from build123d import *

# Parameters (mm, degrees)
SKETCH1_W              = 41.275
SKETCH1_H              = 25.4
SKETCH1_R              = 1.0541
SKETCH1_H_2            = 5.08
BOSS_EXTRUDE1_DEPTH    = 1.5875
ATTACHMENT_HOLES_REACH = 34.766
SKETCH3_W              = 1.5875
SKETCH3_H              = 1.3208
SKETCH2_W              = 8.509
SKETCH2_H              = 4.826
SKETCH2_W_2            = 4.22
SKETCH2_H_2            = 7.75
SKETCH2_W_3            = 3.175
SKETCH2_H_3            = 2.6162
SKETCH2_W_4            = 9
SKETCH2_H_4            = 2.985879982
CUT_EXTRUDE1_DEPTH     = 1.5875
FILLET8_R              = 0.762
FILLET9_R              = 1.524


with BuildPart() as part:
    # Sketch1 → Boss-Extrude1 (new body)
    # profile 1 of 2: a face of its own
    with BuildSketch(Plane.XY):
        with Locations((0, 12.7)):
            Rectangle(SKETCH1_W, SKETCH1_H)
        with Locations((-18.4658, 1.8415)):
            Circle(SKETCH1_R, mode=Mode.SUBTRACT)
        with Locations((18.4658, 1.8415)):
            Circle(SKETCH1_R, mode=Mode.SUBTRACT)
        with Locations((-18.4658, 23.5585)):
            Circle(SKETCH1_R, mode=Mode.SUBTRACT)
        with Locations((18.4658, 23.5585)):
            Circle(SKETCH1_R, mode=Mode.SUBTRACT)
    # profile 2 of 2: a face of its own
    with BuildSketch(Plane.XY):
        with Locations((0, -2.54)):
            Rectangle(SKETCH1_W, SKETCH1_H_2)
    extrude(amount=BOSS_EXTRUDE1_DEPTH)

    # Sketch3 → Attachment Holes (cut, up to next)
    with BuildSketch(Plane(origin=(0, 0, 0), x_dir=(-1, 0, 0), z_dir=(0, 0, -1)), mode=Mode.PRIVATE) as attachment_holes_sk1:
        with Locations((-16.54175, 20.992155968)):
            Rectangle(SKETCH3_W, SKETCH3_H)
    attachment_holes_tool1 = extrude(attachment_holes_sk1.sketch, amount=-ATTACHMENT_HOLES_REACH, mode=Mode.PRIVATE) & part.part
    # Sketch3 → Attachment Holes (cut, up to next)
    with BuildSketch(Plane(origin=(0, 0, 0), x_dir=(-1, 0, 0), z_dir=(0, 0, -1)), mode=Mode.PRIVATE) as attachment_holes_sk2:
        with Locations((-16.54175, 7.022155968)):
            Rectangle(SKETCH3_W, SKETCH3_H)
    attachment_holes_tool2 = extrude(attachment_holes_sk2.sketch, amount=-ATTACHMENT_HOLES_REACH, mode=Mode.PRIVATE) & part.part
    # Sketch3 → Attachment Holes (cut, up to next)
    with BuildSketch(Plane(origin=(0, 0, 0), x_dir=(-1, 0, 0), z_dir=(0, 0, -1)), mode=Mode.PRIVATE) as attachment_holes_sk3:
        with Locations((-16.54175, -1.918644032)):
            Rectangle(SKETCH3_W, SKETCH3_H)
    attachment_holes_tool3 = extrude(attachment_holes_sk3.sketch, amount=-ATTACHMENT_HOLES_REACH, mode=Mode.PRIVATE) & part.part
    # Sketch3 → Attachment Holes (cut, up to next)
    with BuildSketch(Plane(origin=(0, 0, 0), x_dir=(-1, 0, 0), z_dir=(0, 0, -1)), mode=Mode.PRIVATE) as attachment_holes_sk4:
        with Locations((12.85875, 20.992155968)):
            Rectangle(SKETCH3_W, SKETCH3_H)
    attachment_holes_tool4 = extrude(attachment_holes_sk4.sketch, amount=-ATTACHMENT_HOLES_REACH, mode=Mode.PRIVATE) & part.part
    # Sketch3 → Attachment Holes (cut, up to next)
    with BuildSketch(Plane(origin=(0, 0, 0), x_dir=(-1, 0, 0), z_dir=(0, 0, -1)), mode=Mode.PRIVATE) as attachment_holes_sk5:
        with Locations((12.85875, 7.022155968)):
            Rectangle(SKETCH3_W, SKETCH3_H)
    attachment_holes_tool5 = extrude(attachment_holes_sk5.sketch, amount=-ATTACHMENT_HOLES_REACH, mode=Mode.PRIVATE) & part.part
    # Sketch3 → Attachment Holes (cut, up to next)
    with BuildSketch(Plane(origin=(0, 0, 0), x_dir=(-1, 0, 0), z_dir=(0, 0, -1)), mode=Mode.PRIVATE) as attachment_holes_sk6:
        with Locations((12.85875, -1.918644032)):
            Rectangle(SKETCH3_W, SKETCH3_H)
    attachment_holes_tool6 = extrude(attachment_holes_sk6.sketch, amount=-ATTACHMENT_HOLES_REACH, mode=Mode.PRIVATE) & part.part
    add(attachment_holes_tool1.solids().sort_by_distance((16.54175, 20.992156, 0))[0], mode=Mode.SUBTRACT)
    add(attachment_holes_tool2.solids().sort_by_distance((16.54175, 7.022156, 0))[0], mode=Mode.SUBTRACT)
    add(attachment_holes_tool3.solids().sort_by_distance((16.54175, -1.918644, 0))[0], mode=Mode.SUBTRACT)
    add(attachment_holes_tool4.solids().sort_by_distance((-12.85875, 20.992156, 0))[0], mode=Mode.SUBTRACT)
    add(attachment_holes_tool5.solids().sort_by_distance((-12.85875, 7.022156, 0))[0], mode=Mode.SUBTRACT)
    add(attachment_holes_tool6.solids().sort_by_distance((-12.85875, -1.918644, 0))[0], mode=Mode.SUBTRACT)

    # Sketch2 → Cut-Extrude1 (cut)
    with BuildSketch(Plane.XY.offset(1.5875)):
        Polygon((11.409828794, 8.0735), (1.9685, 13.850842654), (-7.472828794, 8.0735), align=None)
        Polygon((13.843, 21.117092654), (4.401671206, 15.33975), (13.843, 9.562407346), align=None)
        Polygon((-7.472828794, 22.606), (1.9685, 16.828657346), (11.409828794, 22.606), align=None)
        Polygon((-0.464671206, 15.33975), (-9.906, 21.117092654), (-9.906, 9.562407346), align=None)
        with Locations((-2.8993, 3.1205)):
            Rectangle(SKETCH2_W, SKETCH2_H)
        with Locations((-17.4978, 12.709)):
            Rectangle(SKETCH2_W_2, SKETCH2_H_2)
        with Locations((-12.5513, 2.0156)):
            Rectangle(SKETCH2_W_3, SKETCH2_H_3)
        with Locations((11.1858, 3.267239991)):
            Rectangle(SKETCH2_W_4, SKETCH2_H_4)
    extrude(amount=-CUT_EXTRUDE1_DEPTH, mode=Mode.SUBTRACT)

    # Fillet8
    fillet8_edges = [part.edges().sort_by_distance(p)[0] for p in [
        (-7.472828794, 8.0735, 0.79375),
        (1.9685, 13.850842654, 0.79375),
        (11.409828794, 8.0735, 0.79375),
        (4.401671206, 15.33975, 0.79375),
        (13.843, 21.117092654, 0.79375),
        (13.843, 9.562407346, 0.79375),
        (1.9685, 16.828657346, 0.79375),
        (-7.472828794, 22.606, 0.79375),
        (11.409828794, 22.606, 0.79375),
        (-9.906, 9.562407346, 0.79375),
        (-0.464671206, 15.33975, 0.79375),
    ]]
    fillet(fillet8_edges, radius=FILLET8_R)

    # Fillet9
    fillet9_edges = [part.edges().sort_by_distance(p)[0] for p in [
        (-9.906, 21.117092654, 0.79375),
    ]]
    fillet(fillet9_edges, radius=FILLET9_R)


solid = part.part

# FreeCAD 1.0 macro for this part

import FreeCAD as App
import Part
import Sketcher

V = App.Vector
Q = App.Units.Quantity


def edges_at(feature, points):
    """Names of the edges that pass closest to the given points."""
    edges = feature.Shape.Edges
    near = lambda p: min(range(len(edges)), key=lambda i: edges[i].distToShape(Part.Vertex(*p))[0])
    return sorted({f"Edge{near(p) + 1}" for p in points})

doc = App.newDocument("Part")
body = doc.addObject("PartDesign::Body", "Body")

sketch1 = body.newObject("Sketcher::SketchObject", "Sketch")
sketch1.AttachmentSupport = (doc.getObject("XY_Plane"), [""])
sketch1.MapMode = "FlatFace"
sketch1.addGeometry([
    Part.LineSegment(V(-20.6375, 25.4, 0), V(-20.6375, -5.08, 0)),
    Part.LineSegment(V(-20.6375, -5.08, 0), V(20.6375, -5.08, 0)),
    Part.LineSegment(V(20.6375, -5.08, 0), V(20.6375, 25.4, 0)),
    Part.LineSegment(V(20.6375, 25.4, 0), V(-20.6375, 25.4, 0)),
    Part.Circle(V(-18.4658, 1.8415, 0), V(0, 0, 1), 1.0541),
    Part.Circle(V(18.4658, 1.8415, 0), V(0, 0, 1), 1.0541),
    Part.Circle(V(-18.4658, 23.5585, 0), V(0, 0, 1), 1.0541),
    Part.Circle(V(18.4658, 23.5585, 0), V(0, 0, 1), 1.0541),
], False)
sketch1.addConstraint([
    Sketcher.Constraint("Coincident", 0, 2, 1, 1),
    Sketcher.Constraint("Coincident", 1, 2, 2, 1),
    Sketcher.Constraint("Coincident", 2, 2, 3, 1),
    Sketcher.Constraint("Coincident", 3, 2, 0, 1),
    Sketcher.Constraint("Vertical", 0),
    Sketcher.Constraint("Horizontal", 1),
    Sketcher.Constraint("Vertical", 2),
    Sketcher.Constraint("Horizontal", 3),
    Sketcher.Constraint("Equal", 4, 5),
    Sketcher.Constraint("Equal", 5, 6),
    Sketcher.Constraint("Equal", 6, 7),
    Sketcher.Constraint("Symmetric", 4, 3, 5, 3, -2),
    Sketcher.Constraint("Symmetric", 6, 3, 7, 3, -2),
    Sketcher.Constraint("Vertical", 4, 3, 6, 3),
    Sketcher.Constraint("Diameter", 4, Q("0.083 in")),
    Sketcher.Constraint("DistanceY", 0, 2, 0, 1, Q("1.2 in")),
    Sketcher.Constraint("DistanceY", -1, 1, 2, 2, Q("1 in")),
    Sketcher.Constraint("DistanceX", 1, 1, 1, 2, Q("1.625 in")),
    Sketcher.Constraint("DistanceX", 4, 3, -1, 1, Q("0.727 in")),
    Sketcher.Constraint("DistanceX", 0, 2, -1, 1, Q("0.8125 in")),
    Sketcher.Constraint("DistanceY", 4, 3, 6, 3, Q("0.855 in")),
    Sketcher.Constraint("DistanceY", -1, 1, 4, 3, Q("0.0725 in")),
])
pad1 = body.newObject("PartDesign::Pad", "Pad")
pad1.Profile = sketch1
pad1.Length = Q("0.0625 in")

sketch2 = body.newObject("Sketcher::SketchObject", "Sketch001")
sketch2.AttachmentSupport = (doc.getObject("XY_Plane"), [""])
sketch2.MapMode = "FlatFace"
sketch2.addGeometry([
    Part.LineSegment(V(17.3355, 21.652556, 0), V(17.3355, 20.331756, 0)),
    Part.LineSegment(V(17.3355, 20.331756, 0), V(15.748, 20.331756, 0)),
    Part.LineSegment(V(15.748, 20.331756, 0), V(15.748, 21.652556, 0)),
    Part.LineSegment(V(15.748, 21.652556, 0), V(17.3355, 21.652556, 0)),
], False)
sketch2.addConstraint([
    Sketcher.Constraint("Coincident", 0, 2, 1, 1),
    Sketcher.Constraint("Coincident", 1, 2, 2, 1),
    Sketcher.Constraint("Coincident", 2, 2, 3, 1),
    Sketcher.Constraint("Coincident", 3, 2, 0, 1),
    Sketcher.Constraint("Vertical", 0),
    Sketcher.Constraint("Horizontal", 1),
    Sketcher.Constraint("Vertical", 2),
    Sketcher.Constraint("Horizontal", 3),
    Sketcher.Constraint("DistanceX", 1, 2, 1, 1, Q("0.0625 in")),
    Sketcher.Constraint("DistanceY", 0, 2, 0, 1, Q("0.052 in")),
    Sketcher.Constraint("DistanceX", -1, 1, 1, 2, Q("0.62 in")),
    Sketcher.Constraint("DistanceY", -1, 1, 0, 2, Q("20.331756 mm")),
])
pocket1 = body.newObject("PartDesign::Pocket", "Pocket")
pocket1.Profile = sketch2
pocket1.Type = "UpToFirst"
pocket1.Reversed = True

sketch3 = body.newObject("Sketcher::SketchObject", "Sketch002")
sketch3.AttachmentSupport = (doc.getObject("XY_Plane"), [""])
sketch3.MapMode = "FlatFace"
sketch3.addGeometry([
    Part.LineSegment(V(17.3355, 7.682556, 0), V(17.3355, 6.361756, 0)),
    Part.LineSegment(V(17.3355, 6.361756, 0), V(15.748, 6.361756, 0)),
    Part.LineSegment(V(15.748, 6.361756, 0), V(15.748, 7.682556, 0)),
    Part.LineSegment(V(15.748, 7.682556, 0), V(17.3355, 7.682556, 0)),
], False)
sketch3.addConstraint([
    Sketcher.Constraint("Coincident", 0, 2, 1, 1),
    Sketcher.Constraint("Coincident", 1, 2, 2, 1),
    Sketcher.Constraint("Coincident", 2, 2, 3, 1),
    Sketcher.Constraint("Coincident", 3, 2, 0, 1),
    Sketcher.Constraint("Vertical", 0),
    Sketcher.Constraint("Horizontal", 1),
    Sketcher.Constraint("Vertical", 2),
    Sketcher.Constraint("Horizontal", 3),
    Sketcher.Constraint("DistanceX", 1, 2, 1, 1, Q("0.0625 in")),
    Sketcher.Constraint("DistanceY", 0, 2, 0, 1, Q("0.052 in")),
    Sketcher.Constraint("DistanceX", -1, 1, 1, 2, Q("0.62 in")),
    Sketcher.Constraint("DistanceY", -1, 1, 0, 2, Q("6.361756 mm")),
])
pocket2 = body.newObject("PartDesign::Pocket", "Pocket001")
pocket2.Profile = sketch3
pocket2.Type = "UpToFirst"
pocket2.Reversed = True

sketch4 = body.newObject("Sketcher::SketchObject", "Sketch003")
sketch4.AttachmentSupport = (doc.getObject("XY_Plane"), [""])
sketch4.MapMode = "FlatFace"
sketch4.addGeometry([
    Part.LineSegment(V(17.3355, -1.258244, 0), V(17.3355, -2.579044, 0)),
    Part.LineSegment(V(17.3355, -2.579044, 0), V(15.748, -2.579044, 0)),
    Part.LineSegment(V(15.748, -2.579044, 0), V(15.748, -1.258244, 0)),
    Part.LineSegment(V(15.748, -1.258244, 0), V(17.3355, -1.258244, 0)),
], False)
sketch4.addConstraint([
    Sketcher.Constraint("Coincident", 0, 2, 1, 1),
    Sketcher.Constraint("Coincident", 1, 2, 2, 1),
    Sketcher.Constraint("Coincident", 2, 2, 3, 1),
    Sketcher.Constraint("Coincident", 3, 2, 0, 1),
    Sketcher.Constraint("Vertical", 0),
    Sketcher.Constraint("Horizontal", 1),
    Sketcher.Constraint("Vertical", 2),
    Sketcher.Constraint("Horizontal", 3),
    Sketcher.Constraint("DistanceX", 1, 2, 1, 1, Q("0.0625 in")),
    Sketcher.Constraint("DistanceY", 0, 2, 0, 1, Q("0.052 in")),
    Sketcher.Constraint("DistanceX", -1, 1, 1, 2, Q("0.62 in")),
    Sketcher.Constraint("DistanceY", 0, 2, -1, 1, Q("2.579044 mm")),
])
pocket3 = body.newObject("PartDesign::Pocket", "Pocket002")
pocket3.Profile = sketch4
pocket3.Type = "UpToFirst"
pocket3.Reversed = True

sketch5 = body.newObject("Sketcher::SketchObject", "Sketch004")
sketch5.AttachmentSupport = (doc.getObject("XY_Plane"), [""])
sketch5.MapMode = "FlatFace"
sketch5.addGeometry([
    Part.LineSegment(V(-12.065, 21.652556, 0), V(-12.065, 20.331756, 0)),
    Part.LineSegment(V(-12.065, 20.331756, 0), V(-13.6525, 20.331756, 0)),
    Part.LineSegment(V(-13.6525, 20.331756, 0), V(-13.6525, 21.652556, 0)),
    Part.LineSegment(V(-13.6525, 21.652556, 0), V(-12.065, 21.652556, 0)),
], False)
sketch5.addConstraint([
    Sketcher.Constraint("Coincident", 0, 2, 1, 1),
    Sketcher.Constraint("Coincident", 1, 2, 2, 1),
    Sketcher.Constraint("Coincident", 2, 2, 3, 1),
    Sketcher.Constraint("Coincident", 3, 2, 0, 1),
    Sketcher.Constraint("Vertical", 0),
    Sketcher.Constraint("Horizontal", 1),
    Sketcher.Constraint("Vertical", 2),
    Sketcher.Constraint("Horizontal", 3),
    Sketcher.Constraint("DistanceX", 1, 2, 1, 1, Q("0.0625 in")),
    Sketcher.Constraint("DistanceY", 0, 2, 0, 1, Q("0.052 in")),
    Sketcher.Constraint("DistanceX", 0, 2, -1, 1, Q("0.475 in")),
    Sketcher.Constraint("DistanceY", -1, 1, 0, 2, Q("20.331756 mm")),
])
pocket4 = body.newObject("PartDesign::Pocket", "Pocket003")
pocket4.Profile = sketch5
pocket4.Type = "UpToFirst"
pocket4.Reversed = True

sketch6 = body.newObject("Sketcher::SketchObject", "Sketch005")
sketch6.AttachmentSupport = (doc.getObject("XY_Plane"), [""])
sketch6.MapMode = "FlatFace"
sketch6.addGeometry([
    Part.LineSegment(V(-12.065, 7.682556, 0), V(-12.065, 6.361756, 0)),
    Part.LineSegment(V(-12.065, 6.361756, 0), V(-13.6525, 6.361756, 0)),
    Part.LineSegment(V(-13.6525, 6.361756, 0), V(-13.6525, 7.682556, 0)),
    Part.LineSegment(V(-13.6525, 7.682556, 0), V(-12.065, 7.682556, 0)),
], False)
sketch6.addConstraint([
    Sketcher.Constraint("Coincident", 0, 2, 1, 1),
    Sketcher.Constraint("Coincident", 1, 2, 2, 1),
    Sketcher.Constraint("Coincident", 2, 2, 3, 1),
    Sketcher.Constraint("Coincident", 3, 2, 0, 1),
    Sketcher.Constraint("Vertical", 0),
    Sketcher.Constraint("Horizontal", 1),
    Sketcher.Constraint("Vertical", 2),
    Sketcher.Constraint("Horizontal", 3),
    Sketcher.Constraint("DistanceX", 1, 2, 1, 1, Q("0.0625 in")),
    Sketcher.Constraint("DistanceY", 0, 2, 0, 1, Q("0.052 in")),
    Sketcher.Constraint("DistanceX", 0, 2, -1, 1, Q("0.475 in")),
    Sketcher.Constraint("DistanceY", -1, 1, 0, 2, Q("6.361756 mm")),
])
pocket5 = body.newObject("PartDesign::Pocket", "Pocket004")
pocket5.Profile = sketch6
pocket5.Type = "UpToFirst"
pocket5.Reversed = True

sketch7 = body.newObject("Sketcher::SketchObject", "Sketch006")
sketch7.AttachmentSupport = (doc.getObject("XY_Plane"), [""])
sketch7.MapMode = "FlatFace"
sketch7.addGeometry([
    Part.LineSegment(V(-12.065, -1.258244, 0), V(-12.065, -2.579044, 0)),
    Part.LineSegment(V(-12.065, -2.579044, 0), V(-13.6525, -2.579044, 0)),
    Part.LineSegment(V(-13.6525, -2.579044, 0), V(-13.6525, -1.258244, 0)),
    Part.LineSegment(V(-13.6525, -1.258244, 0), V(-12.065, -1.258244, 0)),
], False)
sketch7.addConstraint([
    Sketcher.Constraint("Coincident", 0, 2, 1, 1),
    Sketcher.Constraint("Coincident", 1, 2, 2, 1),
    Sketcher.Constraint("Coincident", 2, 2, 3, 1),
    Sketcher.Constraint("Coincident", 3, 2, 0, 1),
    Sketcher.Constraint("Vertical", 0),
    Sketcher.Constraint("Horizontal", 1),
    Sketcher.Constraint("Vertical", 2),
    Sketcher.Constraint("Horizontal", 3),
    Sketcher.Constraint("DistanceX", 1, 2, 1, 1, Q("0.0625 in")),
    Sketcher.Constraint("DistanceY", 0, 2, 0, 1, Q("0.052 in")),
    Sketcher.Constraint("DistanceX", 0, 2, -1, 1, Q("0.475 in")),
    Sketcher.Constraint("DistanceY", 0, 2, -1, 1, Q("2.579044 mm")),
])
pocket6 = body.newObject("PartDesign::Pocket", "Pocket005")
pocket6.Profile = sketch7
pocket6.Type = "UpToFirst"
pocket6.Reversed = True

sketch8 = body.newObject("Sketcher::SketchObject", "Sketch007")
sketch8.AttachmentSupport = (doc.getObject("XY_Plane"), [""])
sketch8.MapMode = "FlatFace"
sketch8.AttachmentOffset = App.Placement(V(0, 0, 0.0625 * 25.4), App.Rotation())
sketch8.addGeometry([
    Part.LineSegment(V(11.409829, 8.0735, 0), V(1.9685, 13.850843, 0)),
    Part.LineSegment(V(1.9685, 13.850843, 0), V(-7.472829, 8.0735, 0)),
    Part.LineSegment(V(-7.472829, 8.0735, 0), V(11.409829, 8.0735, 0)),
    Part.LineSegment(V(13.843, 21.117093, 0), V(4.401671, 15.33975, 0)),
    Part.LineSegment(V(4.401671, 15.33975, 0), V(13.843, 9.562407, 0)),
    Part.LineSegment(V(13.843, 9.562407, 0), V(13.843, 21.117093, 0)),
    Part.LineSegment(V(-7.472829, 22.606, 0), V(1.9685, 16.828657, 0)),
    Part.LineSegment(V(1.9685, 16.828657, 0), V(11.409829, 22.606, 0)),
    Part.LineSegment(V(11.409829, 22.606, 0), V(-7.472829, 22.606, 0)),
    Part.LineSegment(V(-0.464671, 15.33975, 0), V(-9.906, 21.117093, 0)),
    Part.LineSegment(V(-9.906, 21.117093, 0), V(-9.906, 9.562407, 0)),
    Part.LineSegment(V(-9.906, 9.562407, 0), V(-0.464671, 15.33975, 0)),
    Part.LineSegment(V(-7.1538, 5.5335, 0), V(-7.1538, 0.7075, 0)),
    Part.LineSegment(V(-7.1538, 0.7075, 0), V(1.3552, 0.7075, 0)),
    Part.LineSegment(V(1.3552, 0.7075, 0), V(1.3552, 5.5335, 0)),
    Part.LineSegment(V(1.3552, 5.5335, 0), V(-7.1538, 5.5335, 0)),
    Part.LineSegment(V(-19.6078, 16.584, 0), V(-19.6078, 8.834, 0)),
    Part.LineSegment(V(-19.6078, 8.834, 0), V(-15.3878, 8.834, 0)),
    Part.LineSegment(V(-15.3878, 8.834, 0), V(-15.3878, 16.584, 0)),
    Part.LineSegment(V(-15.3878, 16.584, 0), V(-19.6078, 16.584, 0)),
    Part.LineSegment(V(-14.1388, 3.3237, 0), V(-14.1388, 0.7075, 0)),
    Part.LineSegment(V(-14.1388, 0.7075, 0), V(-10.9638, 0.7075, 0)),
    Part.LineSegment(V(-10.9638, 0.7075, 0), V(-10.9638, 3.3237, 0)),
    Part.LineSegment(V(-10.9638, 3.3237, 0), V(-14.1388, 3.3237, 0)),
    Part.LineSegment(V(6.6858, 4.76018, 0), V(6.6858, 1.7743, 0)),
    Part.LineSegment(V(6.6858, 1.7743, 0), V(15.6858, 1.7743, 0)),
    Part.LineSegment(V(15.6858, 1.7743, 0), V(15.6858, 4.76018, 0)),
    Part.LineSegment(V(15.6858, 4.76018, 0), V(6.6858, 4.76018, 0)),
], False)
sketch8.addConstraint([
    Sketcher.Constraint("Coincident", 0, 2, 1, 1),
    Sketcher.Constraint("Coincident", 1, 2, 2, 1),
    Sketcher.Constraint("Coincident", 2, 2, 0, 1),
    Sketcher.Constraint("Coincident", 3, 2, 4, 1),
    Sketcher.Constraint("Coincident", 4, 2, 5, 1),
    Sketcher.Constraint("Coincident", 5, 2, 3, 1),
    Sketcher.Constraint("Coincident", 6, 2, 7, 1),
    Sketcher.Constraint("Coincident", 7, 2, 8, 1),
    Sketcher.Constraint("Coincident", 8, 2, 6, 1),
    Sketcher.Constraint("Coincident", 9, 2, 10, 1),
    Sketcher.Constraint("Coincident", 10, 2, 11, 1),
    Sketcher.Constraint("Coincident", 11, 2, 9, 1),
    Sketcher.Constraint("Coincident", 12, 2, 13, 1),
    Sketcher.Constraint("Coincident", 13, 2, 14, 1),
    Sketcher.Constraint("Coincident", 14, 2, 15, 1),
    Sketcher.Constraint("Coincident", 15, 2, 12, 1),
    Sketcher.Constraint("Coincident", 16, 2, 17, 1),
    Sketcher.Constraint("Coincident", 17, 2, 18, 1),
    Sketcher.Constraint("Coincident", 18, 2, 19, 1),
    Sketcher.Constraint("Coincident", 19, 2, 16, 1),
    Sketcher.Constraint("Coincident", 20, 2, 21, 1),
    Sketcher.Constraint("Coincident", 21, 2, 22, 1),
    Sketcher.Constraint("Coincident", 22, 2, 23, 1),
    Sketcher.Constraint("Coincident", 23, 2, 20, 1),
    Sketcher.Constraint("Coincident", 24, 2, 25, 1),
    Sketcher.Constraint("Coincident", 25, 2, 26, 1),
    Sketcher.Constraint("Coincident", 26, 2, 27, 1),
    Sketcher.Constraint("Coincident", 27, 2, 24, 1),
    Sketcher.Constraint("Horizontal", 2),
    Sketcher.Constraint("Vertical", 5),
    Sketcher.Constraint("Horizontal", 8),
    Sketcher.Constraint("Vertical", 10),
    Sketcher.Constraint("Vertical", 12),
    Sketcher.Constraint("Horizontal", 13),
    Sketcher.Constraint("Vertical", 14),
    Sketcher.Constraint("Horizontal", 15),
    Sketcher.Constraint("Vertical", 16),
    Sketcher.Constraint("Horizontal", 17),
    Sketcher.Constraint("Vertical", 18),
    Sketcher.Constraint("Horizontal", 19),
    Sketcher.Constraint("Vertical", 20),
    Sketcher.Constraint("Horizontal", 21),
    Sketcher.Constraint("Vertical", 22),
    Sketcher.Constraint("Horizontal", 23),
    Sketcher.Constraint("Vertical", 24),
    Sketcher.Constraint("Horizontal", 25),
    Sketcher.Constraint("Vertical", 26),
    Sketcher.Constraint("Horizontal", 27),
    Sketcher.Constraint("Parallel", 1, 3),
    Sketcher.Constraint("Parallel", 0, 4),
    Sketcher.Constraint("Parallel", 4, 6),
    Sketcher.Constraint("Parallel", 3, 7),
    Sketcher.Constraint("Parallel", 6, 9),
    Sketcher.Constraint("Parallel", 7, 11),
    Sketcher.Constraint("Horizontal", 5, 2, 9, 2),
    Sketcher.Constraint("Horizontal", 4, 2, 10, 2),
    Sketcher.Constraint("Horizontal", 3, 2, 11, 2),
    Sketcher.Constraint("Horizontal", 13, 2, 20, 2),
    Sketcher.Constraint("Vertical", 0, 2, 6, 2),
    Sketcher.Constraint("Vertical", 2, 2, 7, 2),
    Sketcher.Constraint("Equal", 1, 3),
    Sketcher.Constraint("DistanceY", 12, 2, 12, 1, Q("0.19 in")),
    Sketcher.Constraint("DistanceY", 14, 2, 1, 2, Q("0.1 in")),
    Sketcher.Constraint("DistanceX", 13, 1, 13, 2, Q("0.335 in")),
    Sketcher.Constraint("DistanceX", 21, 1, 21, 2, Q("0.125 in")),
    Sketcher.Constraint("DistanceY", 20, 2, 20, 1, Q("0.103 in")),
    Sketcher.Constraint("DistanceY", -1, 1, 7, 2, Q("0.89 in")),
    Sketcher.Constraint("DistanceX", 9, 2, -1, 1, Q("0.39 in")),
    Sketcher.Constraint("DistanceX", 21, 2, 12, 2, Q("0.15 in")),
    Sketcher.Constraint("DistanceX", -1, 1, 4, 2, Q("0.545 in")),
    Sketcher.Constraint("DistanceY", 13, 2, 24, 2, Q("0.042 in")),
    Sketcher.Constraint("DistanceX", 17, 1, 17, 2, Q("4.22 mm")),
    Sketcher.Constraint("DistanceX", 25, 1, 25, 2, Q("9 mm")),
    Sketcher.Constraint("DistanceY", 16, 2, 16, 1, Q("7.75 mm")),
    Sketcher.Constraint("DistanceX", -1, 1, 0, 2, Q("0.0775 in")),
    Sketcher.Constraint("DistanceY", 24, 2, 24, 1, Q("2.98588 mm")),
    Sketcher.Constraint("DistanceY", -1, 1, 1, 2, Q("8.0735 mm")),
    Sketcher.Constraint("DistanceX", 12, 2, -1, 1, Q("7.1538 mm")),
    Sketcher.Constraint("DistanceX", 16, 2, -1, 1, Q("19.6078 mm")),
    Sketcher.Constraint("DistanceY", -1, 1, 16, 2, Q("8.834 mm")),
    Sketcher.Constraint("DistanceX", -1, 1, 24, 2, Q("6.6858 mm")),
    Sketcher.Constraint("Distance", 0, Q("11.068712 mm")),
    Sketcher.Constraint("DistanceX", 2, 1, 2, 2, Q("18.882658 mm")),
    Sketcher.Constraint("DistanceY", -1, 1, 3, 2, Q("15.33975 mm")),
])
pocket7 = body.newObject("PartDesign::Pocket", "Pocket006")
pocket7.Profile = sketch8
pocket7.Length = Q("0.0625 in")
doc.recompute()

fillet = body.newObject("PartDesign::Fillet", "Fillet")
fillet.Base = (pocket7, edges_at(pocket7, [
    (-7.473, 8.073, 0.794),
    (1.968, 13.851, 0.794),
    (11.41, 8.073, 0.794),
    (4.402, 15.34, 0.794),
    (13.843, 21.117, 0.794),
    (13.843, 9.562, 0.794),
    (1.968, 16.829, 0.794),
    (-7.473, 22.606, 0.794),
    (11.41, 22.606, 0.794),
    (-9.906, 9.562, 0.794),
    (-0.465, 15.34, 0.794),
]))
fillet.Radius = Q("0.03 in")
doc.recompute()

fillet2 = body.newObject("PartDesign::Fillet", "Fillet001")
fillet2.Base = (fillet, edges_at(fillet, [(-9.906, 21.117, 0.794)]))
fillet2.Radius = Q("0.06 in")

doc.recompute()
